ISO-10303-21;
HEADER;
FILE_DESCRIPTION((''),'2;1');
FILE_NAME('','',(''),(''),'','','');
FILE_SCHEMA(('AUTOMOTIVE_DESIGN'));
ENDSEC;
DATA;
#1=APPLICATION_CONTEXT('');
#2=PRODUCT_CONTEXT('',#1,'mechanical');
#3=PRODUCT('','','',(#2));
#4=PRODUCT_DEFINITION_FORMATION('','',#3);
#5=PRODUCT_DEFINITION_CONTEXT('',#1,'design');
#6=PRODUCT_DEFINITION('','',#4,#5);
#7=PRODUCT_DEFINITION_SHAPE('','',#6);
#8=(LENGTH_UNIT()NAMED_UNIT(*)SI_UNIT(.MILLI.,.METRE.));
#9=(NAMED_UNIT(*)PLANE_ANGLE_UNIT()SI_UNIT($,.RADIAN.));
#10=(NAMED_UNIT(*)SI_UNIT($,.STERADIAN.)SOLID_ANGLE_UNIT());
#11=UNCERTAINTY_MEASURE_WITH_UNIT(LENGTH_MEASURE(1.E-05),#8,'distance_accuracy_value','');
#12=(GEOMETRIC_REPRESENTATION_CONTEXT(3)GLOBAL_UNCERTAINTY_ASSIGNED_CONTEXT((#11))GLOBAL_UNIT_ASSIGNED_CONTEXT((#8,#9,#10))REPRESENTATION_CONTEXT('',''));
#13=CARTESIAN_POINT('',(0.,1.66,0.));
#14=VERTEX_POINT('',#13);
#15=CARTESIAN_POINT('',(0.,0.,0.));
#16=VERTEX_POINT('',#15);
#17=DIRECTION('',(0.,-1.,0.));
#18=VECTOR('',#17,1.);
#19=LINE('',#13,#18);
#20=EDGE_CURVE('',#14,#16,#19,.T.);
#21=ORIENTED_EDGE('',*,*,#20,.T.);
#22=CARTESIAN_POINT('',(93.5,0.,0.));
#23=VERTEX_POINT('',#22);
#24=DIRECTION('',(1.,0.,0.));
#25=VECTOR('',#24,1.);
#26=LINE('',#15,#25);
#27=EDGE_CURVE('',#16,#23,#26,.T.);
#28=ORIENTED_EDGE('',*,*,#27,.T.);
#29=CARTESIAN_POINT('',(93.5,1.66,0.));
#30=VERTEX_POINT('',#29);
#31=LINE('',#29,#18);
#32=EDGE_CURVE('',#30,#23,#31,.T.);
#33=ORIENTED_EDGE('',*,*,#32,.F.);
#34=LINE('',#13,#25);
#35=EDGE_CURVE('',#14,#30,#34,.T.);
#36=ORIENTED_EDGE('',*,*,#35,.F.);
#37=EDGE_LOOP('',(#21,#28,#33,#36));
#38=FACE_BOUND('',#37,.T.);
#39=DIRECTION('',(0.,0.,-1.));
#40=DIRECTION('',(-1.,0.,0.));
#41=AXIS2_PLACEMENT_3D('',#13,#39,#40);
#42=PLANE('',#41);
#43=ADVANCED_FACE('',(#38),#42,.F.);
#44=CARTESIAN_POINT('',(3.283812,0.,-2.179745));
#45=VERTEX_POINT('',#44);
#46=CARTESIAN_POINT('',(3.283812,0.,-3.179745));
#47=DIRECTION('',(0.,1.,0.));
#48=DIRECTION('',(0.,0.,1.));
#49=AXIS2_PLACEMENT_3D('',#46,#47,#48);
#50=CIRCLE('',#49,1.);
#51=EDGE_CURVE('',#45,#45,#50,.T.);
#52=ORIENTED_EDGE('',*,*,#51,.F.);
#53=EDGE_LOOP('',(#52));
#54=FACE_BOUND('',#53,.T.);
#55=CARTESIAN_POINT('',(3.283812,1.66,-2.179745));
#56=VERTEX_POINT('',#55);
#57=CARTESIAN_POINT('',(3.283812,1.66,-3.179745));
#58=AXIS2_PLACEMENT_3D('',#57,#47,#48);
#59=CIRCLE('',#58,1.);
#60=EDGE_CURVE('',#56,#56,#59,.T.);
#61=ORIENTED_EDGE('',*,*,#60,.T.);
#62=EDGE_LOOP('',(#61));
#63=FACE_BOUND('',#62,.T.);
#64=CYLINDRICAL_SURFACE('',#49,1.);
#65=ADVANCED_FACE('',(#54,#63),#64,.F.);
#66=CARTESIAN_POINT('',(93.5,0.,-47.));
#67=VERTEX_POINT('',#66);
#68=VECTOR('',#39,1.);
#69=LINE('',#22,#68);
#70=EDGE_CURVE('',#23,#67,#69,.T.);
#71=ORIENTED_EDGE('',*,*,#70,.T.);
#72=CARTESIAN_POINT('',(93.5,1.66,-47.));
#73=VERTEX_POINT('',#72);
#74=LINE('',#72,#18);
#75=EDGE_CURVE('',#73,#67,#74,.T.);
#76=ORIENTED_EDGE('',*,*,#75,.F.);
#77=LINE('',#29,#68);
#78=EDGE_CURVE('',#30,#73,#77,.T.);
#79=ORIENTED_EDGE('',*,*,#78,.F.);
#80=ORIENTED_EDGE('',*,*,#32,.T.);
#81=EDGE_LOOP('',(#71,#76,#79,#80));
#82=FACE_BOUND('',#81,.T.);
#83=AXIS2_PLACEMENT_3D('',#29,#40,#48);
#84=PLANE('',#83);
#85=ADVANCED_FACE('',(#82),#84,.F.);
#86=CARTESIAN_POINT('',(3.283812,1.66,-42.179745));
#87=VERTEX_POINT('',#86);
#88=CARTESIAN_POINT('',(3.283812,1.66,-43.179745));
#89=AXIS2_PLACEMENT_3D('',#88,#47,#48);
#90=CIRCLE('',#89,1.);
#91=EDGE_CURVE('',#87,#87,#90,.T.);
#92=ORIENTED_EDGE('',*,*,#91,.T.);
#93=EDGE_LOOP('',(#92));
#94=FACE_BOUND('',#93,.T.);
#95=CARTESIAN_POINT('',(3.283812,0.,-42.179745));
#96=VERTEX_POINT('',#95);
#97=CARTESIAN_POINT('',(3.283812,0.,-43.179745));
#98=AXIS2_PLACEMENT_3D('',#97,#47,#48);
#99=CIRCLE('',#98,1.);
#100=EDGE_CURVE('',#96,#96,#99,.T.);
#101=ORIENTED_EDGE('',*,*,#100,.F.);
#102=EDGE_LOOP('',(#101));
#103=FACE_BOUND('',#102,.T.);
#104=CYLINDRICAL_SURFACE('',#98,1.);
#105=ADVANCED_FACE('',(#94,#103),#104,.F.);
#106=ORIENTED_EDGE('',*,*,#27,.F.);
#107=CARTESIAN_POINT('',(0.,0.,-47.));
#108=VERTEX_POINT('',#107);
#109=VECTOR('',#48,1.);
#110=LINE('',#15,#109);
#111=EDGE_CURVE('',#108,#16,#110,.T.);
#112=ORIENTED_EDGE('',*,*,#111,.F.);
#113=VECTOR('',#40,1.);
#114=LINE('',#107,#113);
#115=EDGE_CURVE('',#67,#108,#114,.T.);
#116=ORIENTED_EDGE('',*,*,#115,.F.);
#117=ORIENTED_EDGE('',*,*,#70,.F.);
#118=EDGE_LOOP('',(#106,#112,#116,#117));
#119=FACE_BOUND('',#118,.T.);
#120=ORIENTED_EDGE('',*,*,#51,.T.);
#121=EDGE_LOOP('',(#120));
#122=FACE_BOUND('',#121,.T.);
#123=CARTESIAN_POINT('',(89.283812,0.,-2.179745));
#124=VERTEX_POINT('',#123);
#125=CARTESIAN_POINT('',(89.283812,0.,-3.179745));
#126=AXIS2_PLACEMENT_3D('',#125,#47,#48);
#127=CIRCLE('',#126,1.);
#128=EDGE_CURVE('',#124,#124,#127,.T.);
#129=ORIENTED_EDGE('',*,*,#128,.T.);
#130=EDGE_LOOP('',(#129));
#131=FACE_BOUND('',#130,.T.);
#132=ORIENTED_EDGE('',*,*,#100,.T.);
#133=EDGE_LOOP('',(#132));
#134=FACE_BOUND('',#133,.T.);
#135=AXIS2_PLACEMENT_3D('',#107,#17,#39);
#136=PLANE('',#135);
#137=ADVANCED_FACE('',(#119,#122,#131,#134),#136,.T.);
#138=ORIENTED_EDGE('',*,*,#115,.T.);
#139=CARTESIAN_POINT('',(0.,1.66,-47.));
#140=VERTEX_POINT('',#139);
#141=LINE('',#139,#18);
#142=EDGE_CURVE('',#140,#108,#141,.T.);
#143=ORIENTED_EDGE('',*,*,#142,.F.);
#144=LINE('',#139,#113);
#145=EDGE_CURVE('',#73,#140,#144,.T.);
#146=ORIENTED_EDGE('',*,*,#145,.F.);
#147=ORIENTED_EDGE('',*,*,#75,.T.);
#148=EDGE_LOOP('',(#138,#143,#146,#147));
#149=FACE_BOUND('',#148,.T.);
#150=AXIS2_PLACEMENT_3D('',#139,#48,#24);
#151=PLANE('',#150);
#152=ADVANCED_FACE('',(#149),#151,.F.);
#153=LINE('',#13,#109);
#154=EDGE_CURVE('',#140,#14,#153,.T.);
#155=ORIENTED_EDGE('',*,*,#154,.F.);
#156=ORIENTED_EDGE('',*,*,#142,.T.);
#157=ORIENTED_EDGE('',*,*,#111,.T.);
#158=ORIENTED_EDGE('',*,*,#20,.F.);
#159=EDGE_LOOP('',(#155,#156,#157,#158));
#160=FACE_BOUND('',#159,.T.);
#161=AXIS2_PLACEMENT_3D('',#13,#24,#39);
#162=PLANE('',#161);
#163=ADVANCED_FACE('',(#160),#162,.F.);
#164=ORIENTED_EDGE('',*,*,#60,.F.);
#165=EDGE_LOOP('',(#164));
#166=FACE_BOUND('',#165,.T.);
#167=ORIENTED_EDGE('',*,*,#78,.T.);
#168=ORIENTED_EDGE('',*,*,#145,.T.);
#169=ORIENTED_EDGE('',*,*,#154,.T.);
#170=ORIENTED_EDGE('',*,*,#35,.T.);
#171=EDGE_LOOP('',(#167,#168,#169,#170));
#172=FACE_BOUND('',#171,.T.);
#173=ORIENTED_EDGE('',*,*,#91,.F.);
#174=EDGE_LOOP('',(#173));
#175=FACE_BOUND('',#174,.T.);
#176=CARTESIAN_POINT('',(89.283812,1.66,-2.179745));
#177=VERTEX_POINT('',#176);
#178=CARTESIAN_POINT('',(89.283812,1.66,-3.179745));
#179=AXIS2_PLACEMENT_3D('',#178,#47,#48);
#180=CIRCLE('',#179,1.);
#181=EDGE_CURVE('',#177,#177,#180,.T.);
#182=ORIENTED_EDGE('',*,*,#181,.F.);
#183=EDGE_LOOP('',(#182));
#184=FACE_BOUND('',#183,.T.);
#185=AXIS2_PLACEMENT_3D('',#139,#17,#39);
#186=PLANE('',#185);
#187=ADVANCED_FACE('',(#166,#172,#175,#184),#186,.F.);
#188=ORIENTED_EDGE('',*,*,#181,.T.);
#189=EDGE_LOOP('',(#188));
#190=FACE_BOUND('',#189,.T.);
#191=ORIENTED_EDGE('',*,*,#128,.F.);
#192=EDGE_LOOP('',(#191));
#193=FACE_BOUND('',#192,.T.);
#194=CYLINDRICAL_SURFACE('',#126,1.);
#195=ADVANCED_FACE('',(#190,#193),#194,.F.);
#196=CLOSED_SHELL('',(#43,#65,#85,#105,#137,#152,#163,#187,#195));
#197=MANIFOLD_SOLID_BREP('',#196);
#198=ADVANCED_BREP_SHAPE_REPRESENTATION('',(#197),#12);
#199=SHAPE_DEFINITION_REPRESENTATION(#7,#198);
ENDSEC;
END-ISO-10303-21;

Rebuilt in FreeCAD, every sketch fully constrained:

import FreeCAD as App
import Part
import Sketcher
from FreeCAD import Vector
Q = App.Units.Quantity


def add_polygon(sketch, points):
    """Adds a closed chain of lines whose ends are joined by coincident constraints."""
    first, n = sketch.GeometryCount, len(points)
    for a, b in zip(points, points[1:] + points[:1]):
        sketch.addGeometry(Part.LineSegment(App.Vector(*a, 0), App.Vector(*b, 0)), False)
    for i in range(n):
        sketch.addConstraint(Sketcher.Constraint("Coincident", first + i, 2, first + (i + 1) % n, 1))

doc = App.newDocument("Part")
body = doc.addObject("PartDesign::Body", "Body")

# Sketch on XZ plane
sketch1 = body.newObject("Sketcher::SketchObject", "Sketch")
sketch1.AttachmentSupport = (doc.getObject("XZ_Plane"), [""])
sketch1.MapMode = "FlatFace"
add_polygon(sketch1, [(0, -47), (0, 0), (94, 0), (94, -47)])  # lines 0-3
sketch1.addConstraint(Sketcher.Constraint("Vertical", 0))
sketch1.addConstraint(Sketcher.Constraint("Horizontal", 1))
sketch1.addConstraint(Sketcher.Constraint("Vertical", 2))
sketch1.addConstraint(Sketcher.Constraint("Horizontal", 3))
sketch1.addConstraint(Sketcher.Constraint("Coincident", 0, 2, -1, 1))
sketch1.addConstraint(Sketcher.Constraint("DistanceY", 0, 1, 0, 2, Q("47 mm")))
sketch1.addConstraint(Sketcher.Constraint("DistanceX", 1, 1, 1, 2, Q("93.5 mm")))
pad1 = body.newObject("PartDesign::Pad", "Pad")
pad1.Profile = sketch1
pad1.Length = 1.66
pad1.Reversed = True

# Sketch on XZ plane
sketch2 = body.newObject("Sketcher::SketchObject", "Sketch001")
sketch2.AttachmentSupport = (doc.getObject("XZ_Plane"), [""])
sketch2.MapMode = "FlatFace"
sketch2.AttachmentOffset = App.Placement(Vector(0, 0, -1.66), App.Rotation())
sketch2.addGeometry(Part.Circle(Vector(3.3, -43.2, 0), Vector(0, 0, 1), 1), False)
sketch2.addGeometry(Part.Circle(Vector(89.3, -3.2, 0), Vector(0, 0, 1), 1), False)
sketch2.addGeometry(Part.Circle(Vector(3.3, -3.2, 0), Vector(0, 0, 1), 1), False)
sketch2.addConstraint(Sketcher.Constraint("Equal", 0, 1))
sketch2.addConstraint(Sketcher.Constraint("Equal", 1, 2))
sketch2.addConstraint(Sketcher.Constraint("Horizontal", 1, 3, 2, 3))
sketch2.addConstraint(Sketcher.Constraint("Vertical", 0, 3, 2, 3))
sketch2.addConstraint(Sketcher.Constraint("Diameter", 0, Q("2 mm")))
sketch2.addConstraint(Sketcher.Constraint("DistanceX", 0, 3, 1, 3, Q("86 mm")))
sketch2.addConstraint(Sketcher.Constraint("DistanceY", 0, 3, 1, 3, Q("40 mm")))
sketch2.addConstraint(Sketcher.Constraint("DistanceX", -1, 1, 0, 3, Q("3.283812 mm")))
sketch2.addConstraint(Sketcher.Constraint("DistanceY", 0, 3, -1, 1, Q("43.179745 mm")))
pocket1 = body.newObject("PartDesign::Pocket", "Pocket")
pocket1.Profile = sketch2
pocket1.Length = 1.66
pocket1.Reversed = True

doc.recompute()
